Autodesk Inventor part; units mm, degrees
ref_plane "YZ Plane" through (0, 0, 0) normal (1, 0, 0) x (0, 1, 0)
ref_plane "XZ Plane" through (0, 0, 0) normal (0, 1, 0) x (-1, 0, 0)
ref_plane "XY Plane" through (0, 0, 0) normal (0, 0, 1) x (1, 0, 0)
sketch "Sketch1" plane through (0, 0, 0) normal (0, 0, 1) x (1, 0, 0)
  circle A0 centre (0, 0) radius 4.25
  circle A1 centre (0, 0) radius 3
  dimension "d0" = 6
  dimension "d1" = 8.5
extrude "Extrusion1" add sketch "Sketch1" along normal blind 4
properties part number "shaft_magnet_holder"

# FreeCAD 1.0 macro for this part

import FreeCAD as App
import Part
import Sketcher
Q = App.Units.Quantity

doc = App.newDocument("Part")
params = doc.addObject("Spreadsheet::Sheet", "Params")
for row, (alias, value) in enumerate([
    ("sketch1_diameter", "6 mm"),
    ("sketch1_diameter2", "8.5 mm"),
    ("pad1_length", "4 mm"),
], start=1):
    params.set(f"A{row}", alias)
    params.set(f"B{row}", "=" + value)
    params.setAlias(f"B{row}", alias)

body = doc.addObject("PartDesign::Body", "Body")

# Sketch on XY plane
sketch1 = doc.addObject("Sketcher::SketchObject", "Sketch")
body.addObject(sketch1)
sketch1.AttachmentSupport = (doc.XY_Plane, [""])
sketch1.MapMode = "FlatFace"
sketch1.addGeometry([
    Part.Circle(App.Vector(0, 0, 0), App.Vector(0, 0, 1), 4.2),
    Part.Circle(App.Vector(0, 0, 0), App.Vector(0, 0, 1), 3),
], False)
sketch1.addConstraint([
    Sketcher.Constraint("Coincident", 0, 3, -1, 1),
    Sketcher.Constraint("Coincident", 1, 3, -1, 1),
    Sketcher.Constraint("Diameter", 1, Q("6 mm")),
    Sketcher.Constraint("Diameter", 0, Q("8.5 mm")),
])
sketch1.setExpression("Constraints[2]", "Params.sketch1_diameter")
sketch1.setExpression("Constraints[3]", "Params.sketch1_diameter2")
pad1 = doc.addObject("PartDesign::Pad", "Pad")
body.addObject(pad1)
pad1.Profile = sketch1
pad1.setExpression("Length", "Params.pad1_length")

doc.recompute()
